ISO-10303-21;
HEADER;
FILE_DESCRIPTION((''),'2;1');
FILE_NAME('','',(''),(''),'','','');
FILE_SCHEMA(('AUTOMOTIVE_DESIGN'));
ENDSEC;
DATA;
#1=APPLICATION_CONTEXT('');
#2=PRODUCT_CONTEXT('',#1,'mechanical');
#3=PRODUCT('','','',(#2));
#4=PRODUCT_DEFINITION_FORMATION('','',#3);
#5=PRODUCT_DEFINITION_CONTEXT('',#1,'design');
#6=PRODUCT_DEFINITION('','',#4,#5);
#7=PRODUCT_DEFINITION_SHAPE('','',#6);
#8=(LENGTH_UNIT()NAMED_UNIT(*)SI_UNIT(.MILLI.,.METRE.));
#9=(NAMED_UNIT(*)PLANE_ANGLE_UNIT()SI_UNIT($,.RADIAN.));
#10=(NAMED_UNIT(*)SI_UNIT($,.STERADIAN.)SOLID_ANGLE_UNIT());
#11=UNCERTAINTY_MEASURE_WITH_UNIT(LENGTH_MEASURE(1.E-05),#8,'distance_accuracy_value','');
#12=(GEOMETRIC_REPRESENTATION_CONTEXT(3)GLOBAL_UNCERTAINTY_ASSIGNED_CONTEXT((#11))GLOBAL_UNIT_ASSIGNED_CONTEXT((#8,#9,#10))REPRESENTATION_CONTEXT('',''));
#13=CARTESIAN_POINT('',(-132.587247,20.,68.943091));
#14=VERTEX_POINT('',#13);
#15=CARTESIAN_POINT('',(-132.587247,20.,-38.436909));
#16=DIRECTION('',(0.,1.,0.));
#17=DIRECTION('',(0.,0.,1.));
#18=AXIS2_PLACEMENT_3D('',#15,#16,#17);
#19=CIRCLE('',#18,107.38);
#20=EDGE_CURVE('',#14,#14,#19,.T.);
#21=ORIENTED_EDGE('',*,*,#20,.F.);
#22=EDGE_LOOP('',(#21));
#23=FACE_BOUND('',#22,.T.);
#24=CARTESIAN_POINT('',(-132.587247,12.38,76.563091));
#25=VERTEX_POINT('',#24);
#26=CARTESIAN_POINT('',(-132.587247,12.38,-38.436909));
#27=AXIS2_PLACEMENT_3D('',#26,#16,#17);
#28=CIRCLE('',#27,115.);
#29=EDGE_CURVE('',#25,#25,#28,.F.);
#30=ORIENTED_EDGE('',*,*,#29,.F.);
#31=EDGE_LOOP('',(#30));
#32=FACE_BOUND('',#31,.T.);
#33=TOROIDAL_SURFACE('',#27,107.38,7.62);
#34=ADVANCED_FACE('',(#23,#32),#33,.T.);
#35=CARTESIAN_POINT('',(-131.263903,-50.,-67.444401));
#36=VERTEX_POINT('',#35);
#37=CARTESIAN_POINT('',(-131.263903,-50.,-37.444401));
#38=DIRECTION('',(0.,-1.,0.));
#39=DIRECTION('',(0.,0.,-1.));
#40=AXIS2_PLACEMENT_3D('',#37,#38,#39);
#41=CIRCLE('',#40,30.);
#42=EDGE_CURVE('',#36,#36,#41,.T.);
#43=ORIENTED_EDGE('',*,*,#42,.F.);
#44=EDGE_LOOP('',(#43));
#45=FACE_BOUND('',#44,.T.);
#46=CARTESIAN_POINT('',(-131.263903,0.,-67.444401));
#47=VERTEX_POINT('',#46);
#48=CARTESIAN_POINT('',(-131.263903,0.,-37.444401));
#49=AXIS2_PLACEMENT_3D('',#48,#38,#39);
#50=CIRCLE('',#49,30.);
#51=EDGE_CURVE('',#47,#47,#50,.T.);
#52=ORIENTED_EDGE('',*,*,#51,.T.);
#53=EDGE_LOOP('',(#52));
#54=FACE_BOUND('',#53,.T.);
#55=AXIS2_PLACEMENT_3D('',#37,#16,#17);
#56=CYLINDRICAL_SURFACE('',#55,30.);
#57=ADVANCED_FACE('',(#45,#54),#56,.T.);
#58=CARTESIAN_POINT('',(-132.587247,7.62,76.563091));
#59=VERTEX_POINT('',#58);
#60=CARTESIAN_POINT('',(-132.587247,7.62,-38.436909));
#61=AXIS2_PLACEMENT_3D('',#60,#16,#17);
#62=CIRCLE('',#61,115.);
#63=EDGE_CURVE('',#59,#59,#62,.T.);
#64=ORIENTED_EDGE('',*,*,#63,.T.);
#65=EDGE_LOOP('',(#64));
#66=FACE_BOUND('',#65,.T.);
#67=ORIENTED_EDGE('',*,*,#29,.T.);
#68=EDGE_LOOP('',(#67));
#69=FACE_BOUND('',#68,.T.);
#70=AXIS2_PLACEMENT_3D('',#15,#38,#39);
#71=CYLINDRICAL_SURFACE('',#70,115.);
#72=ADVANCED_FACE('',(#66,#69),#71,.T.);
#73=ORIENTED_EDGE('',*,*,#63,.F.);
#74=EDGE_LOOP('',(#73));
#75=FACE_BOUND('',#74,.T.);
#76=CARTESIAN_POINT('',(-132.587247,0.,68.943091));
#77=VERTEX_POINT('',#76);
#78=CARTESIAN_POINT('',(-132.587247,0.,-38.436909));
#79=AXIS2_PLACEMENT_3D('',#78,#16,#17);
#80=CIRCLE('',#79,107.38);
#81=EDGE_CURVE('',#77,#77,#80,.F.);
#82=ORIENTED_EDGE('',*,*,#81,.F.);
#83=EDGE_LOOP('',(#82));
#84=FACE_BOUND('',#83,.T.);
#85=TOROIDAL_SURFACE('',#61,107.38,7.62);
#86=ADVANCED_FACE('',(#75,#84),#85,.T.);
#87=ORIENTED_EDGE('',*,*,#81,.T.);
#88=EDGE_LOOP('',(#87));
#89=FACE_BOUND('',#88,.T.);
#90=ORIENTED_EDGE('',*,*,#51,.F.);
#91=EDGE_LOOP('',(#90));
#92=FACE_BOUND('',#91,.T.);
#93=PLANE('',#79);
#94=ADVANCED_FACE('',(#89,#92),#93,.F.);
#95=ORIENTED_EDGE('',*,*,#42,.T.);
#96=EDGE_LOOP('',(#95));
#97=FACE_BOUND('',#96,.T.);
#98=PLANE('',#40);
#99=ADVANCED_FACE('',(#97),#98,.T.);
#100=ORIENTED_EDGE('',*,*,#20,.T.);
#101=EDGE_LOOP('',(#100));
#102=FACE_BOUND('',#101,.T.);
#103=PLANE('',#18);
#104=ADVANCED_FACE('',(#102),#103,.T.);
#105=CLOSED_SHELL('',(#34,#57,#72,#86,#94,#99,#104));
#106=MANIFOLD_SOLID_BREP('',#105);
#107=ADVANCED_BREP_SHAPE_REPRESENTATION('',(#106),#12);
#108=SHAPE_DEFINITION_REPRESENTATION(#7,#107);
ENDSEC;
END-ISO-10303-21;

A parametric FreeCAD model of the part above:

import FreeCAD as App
import Part
import Sketcher


def edges_at(feature, points):
    """Names of the edges that pass closest to the given points."""
    edges = feature.Shape.Edges
    near = lambda p: min(range(len(edges)), key=lambda i: edges[i].distToShape(Part.Vertex(*p))[0])
    return sorted({f"Edge{near(p) + 1}" for p in points})

doc = App.newDocument("Part")
body = doc.addObject("PartDesign::Body", "Body")

# Sketch on XZ plane
sketch1 = doc.addObject("Sketcher::SketchObject", "Sketch")
body.addObject(sketch1)
sketch1.AttachmentSupport = (doc.XZ_Plane, [""])
sketch1.MapMode = "FlatFace"
sketch1.addGeometry(Part.Circle(App.Vector(-133, -38, 0), App.Vector(0, 0, 1), 115), False)
sketch1.addConstraint([
    Sketcher.Constraint("Diameter", 0, 230.0),
    Sketcher.Constraint("DistanceY", 0, 3, -1, 1, 38.436909),
    Sketcher.Constraint("DistanceX", 0, 3, -1, 1, 132.587247),
])
pad1 = doc.addObject("PartDesign::Pad", "Pad")
body.addObject(pad1)
pad1.Profile = sketch1
pad1.Length = 20
pad1.Reversed = True

# Sketch on XZ plane
sketch2 = doc.addObject("Sketcher::SketchObject", "Sketch001")
body.addObject(sketch2)
sketch2.AttachmentSupport = (doc.XZ_Plane, [""])
sketch2.MapMode = "FlatFace"
sketch2.addGeometry(Part.Circle(App.Vector(-131, -37, 0), App.Vector(0, 0, 1), 30), False)
sketch2.addConstraint([
    Sketcher.Constraint("Diameter", 0, 60.0),
    Sketcher.Constraint("DistanceY", 0, 3, -1, 1, 37.444401),
    Sketcher.Constraint("DistanceX", 0, 3, -1, 1, 131.263903),
])
pad2 = doc.addObject("PartDesign::Pad", "Pad001")
body.addObject(pad2)
pad2.Profile = sketch2
pad2.Length = 50
doc.recompute()

fillet = doc.addObject("PartDesign::Fillet", "Fillet")
body.addObject(fillet)
fillet.Base = (pad2, edges_at(pad2, [(-132.587, 0, -153.437), (-132.587, 20, -153.437)]))
fillet.Radius = 7.62

doc.recompute()
